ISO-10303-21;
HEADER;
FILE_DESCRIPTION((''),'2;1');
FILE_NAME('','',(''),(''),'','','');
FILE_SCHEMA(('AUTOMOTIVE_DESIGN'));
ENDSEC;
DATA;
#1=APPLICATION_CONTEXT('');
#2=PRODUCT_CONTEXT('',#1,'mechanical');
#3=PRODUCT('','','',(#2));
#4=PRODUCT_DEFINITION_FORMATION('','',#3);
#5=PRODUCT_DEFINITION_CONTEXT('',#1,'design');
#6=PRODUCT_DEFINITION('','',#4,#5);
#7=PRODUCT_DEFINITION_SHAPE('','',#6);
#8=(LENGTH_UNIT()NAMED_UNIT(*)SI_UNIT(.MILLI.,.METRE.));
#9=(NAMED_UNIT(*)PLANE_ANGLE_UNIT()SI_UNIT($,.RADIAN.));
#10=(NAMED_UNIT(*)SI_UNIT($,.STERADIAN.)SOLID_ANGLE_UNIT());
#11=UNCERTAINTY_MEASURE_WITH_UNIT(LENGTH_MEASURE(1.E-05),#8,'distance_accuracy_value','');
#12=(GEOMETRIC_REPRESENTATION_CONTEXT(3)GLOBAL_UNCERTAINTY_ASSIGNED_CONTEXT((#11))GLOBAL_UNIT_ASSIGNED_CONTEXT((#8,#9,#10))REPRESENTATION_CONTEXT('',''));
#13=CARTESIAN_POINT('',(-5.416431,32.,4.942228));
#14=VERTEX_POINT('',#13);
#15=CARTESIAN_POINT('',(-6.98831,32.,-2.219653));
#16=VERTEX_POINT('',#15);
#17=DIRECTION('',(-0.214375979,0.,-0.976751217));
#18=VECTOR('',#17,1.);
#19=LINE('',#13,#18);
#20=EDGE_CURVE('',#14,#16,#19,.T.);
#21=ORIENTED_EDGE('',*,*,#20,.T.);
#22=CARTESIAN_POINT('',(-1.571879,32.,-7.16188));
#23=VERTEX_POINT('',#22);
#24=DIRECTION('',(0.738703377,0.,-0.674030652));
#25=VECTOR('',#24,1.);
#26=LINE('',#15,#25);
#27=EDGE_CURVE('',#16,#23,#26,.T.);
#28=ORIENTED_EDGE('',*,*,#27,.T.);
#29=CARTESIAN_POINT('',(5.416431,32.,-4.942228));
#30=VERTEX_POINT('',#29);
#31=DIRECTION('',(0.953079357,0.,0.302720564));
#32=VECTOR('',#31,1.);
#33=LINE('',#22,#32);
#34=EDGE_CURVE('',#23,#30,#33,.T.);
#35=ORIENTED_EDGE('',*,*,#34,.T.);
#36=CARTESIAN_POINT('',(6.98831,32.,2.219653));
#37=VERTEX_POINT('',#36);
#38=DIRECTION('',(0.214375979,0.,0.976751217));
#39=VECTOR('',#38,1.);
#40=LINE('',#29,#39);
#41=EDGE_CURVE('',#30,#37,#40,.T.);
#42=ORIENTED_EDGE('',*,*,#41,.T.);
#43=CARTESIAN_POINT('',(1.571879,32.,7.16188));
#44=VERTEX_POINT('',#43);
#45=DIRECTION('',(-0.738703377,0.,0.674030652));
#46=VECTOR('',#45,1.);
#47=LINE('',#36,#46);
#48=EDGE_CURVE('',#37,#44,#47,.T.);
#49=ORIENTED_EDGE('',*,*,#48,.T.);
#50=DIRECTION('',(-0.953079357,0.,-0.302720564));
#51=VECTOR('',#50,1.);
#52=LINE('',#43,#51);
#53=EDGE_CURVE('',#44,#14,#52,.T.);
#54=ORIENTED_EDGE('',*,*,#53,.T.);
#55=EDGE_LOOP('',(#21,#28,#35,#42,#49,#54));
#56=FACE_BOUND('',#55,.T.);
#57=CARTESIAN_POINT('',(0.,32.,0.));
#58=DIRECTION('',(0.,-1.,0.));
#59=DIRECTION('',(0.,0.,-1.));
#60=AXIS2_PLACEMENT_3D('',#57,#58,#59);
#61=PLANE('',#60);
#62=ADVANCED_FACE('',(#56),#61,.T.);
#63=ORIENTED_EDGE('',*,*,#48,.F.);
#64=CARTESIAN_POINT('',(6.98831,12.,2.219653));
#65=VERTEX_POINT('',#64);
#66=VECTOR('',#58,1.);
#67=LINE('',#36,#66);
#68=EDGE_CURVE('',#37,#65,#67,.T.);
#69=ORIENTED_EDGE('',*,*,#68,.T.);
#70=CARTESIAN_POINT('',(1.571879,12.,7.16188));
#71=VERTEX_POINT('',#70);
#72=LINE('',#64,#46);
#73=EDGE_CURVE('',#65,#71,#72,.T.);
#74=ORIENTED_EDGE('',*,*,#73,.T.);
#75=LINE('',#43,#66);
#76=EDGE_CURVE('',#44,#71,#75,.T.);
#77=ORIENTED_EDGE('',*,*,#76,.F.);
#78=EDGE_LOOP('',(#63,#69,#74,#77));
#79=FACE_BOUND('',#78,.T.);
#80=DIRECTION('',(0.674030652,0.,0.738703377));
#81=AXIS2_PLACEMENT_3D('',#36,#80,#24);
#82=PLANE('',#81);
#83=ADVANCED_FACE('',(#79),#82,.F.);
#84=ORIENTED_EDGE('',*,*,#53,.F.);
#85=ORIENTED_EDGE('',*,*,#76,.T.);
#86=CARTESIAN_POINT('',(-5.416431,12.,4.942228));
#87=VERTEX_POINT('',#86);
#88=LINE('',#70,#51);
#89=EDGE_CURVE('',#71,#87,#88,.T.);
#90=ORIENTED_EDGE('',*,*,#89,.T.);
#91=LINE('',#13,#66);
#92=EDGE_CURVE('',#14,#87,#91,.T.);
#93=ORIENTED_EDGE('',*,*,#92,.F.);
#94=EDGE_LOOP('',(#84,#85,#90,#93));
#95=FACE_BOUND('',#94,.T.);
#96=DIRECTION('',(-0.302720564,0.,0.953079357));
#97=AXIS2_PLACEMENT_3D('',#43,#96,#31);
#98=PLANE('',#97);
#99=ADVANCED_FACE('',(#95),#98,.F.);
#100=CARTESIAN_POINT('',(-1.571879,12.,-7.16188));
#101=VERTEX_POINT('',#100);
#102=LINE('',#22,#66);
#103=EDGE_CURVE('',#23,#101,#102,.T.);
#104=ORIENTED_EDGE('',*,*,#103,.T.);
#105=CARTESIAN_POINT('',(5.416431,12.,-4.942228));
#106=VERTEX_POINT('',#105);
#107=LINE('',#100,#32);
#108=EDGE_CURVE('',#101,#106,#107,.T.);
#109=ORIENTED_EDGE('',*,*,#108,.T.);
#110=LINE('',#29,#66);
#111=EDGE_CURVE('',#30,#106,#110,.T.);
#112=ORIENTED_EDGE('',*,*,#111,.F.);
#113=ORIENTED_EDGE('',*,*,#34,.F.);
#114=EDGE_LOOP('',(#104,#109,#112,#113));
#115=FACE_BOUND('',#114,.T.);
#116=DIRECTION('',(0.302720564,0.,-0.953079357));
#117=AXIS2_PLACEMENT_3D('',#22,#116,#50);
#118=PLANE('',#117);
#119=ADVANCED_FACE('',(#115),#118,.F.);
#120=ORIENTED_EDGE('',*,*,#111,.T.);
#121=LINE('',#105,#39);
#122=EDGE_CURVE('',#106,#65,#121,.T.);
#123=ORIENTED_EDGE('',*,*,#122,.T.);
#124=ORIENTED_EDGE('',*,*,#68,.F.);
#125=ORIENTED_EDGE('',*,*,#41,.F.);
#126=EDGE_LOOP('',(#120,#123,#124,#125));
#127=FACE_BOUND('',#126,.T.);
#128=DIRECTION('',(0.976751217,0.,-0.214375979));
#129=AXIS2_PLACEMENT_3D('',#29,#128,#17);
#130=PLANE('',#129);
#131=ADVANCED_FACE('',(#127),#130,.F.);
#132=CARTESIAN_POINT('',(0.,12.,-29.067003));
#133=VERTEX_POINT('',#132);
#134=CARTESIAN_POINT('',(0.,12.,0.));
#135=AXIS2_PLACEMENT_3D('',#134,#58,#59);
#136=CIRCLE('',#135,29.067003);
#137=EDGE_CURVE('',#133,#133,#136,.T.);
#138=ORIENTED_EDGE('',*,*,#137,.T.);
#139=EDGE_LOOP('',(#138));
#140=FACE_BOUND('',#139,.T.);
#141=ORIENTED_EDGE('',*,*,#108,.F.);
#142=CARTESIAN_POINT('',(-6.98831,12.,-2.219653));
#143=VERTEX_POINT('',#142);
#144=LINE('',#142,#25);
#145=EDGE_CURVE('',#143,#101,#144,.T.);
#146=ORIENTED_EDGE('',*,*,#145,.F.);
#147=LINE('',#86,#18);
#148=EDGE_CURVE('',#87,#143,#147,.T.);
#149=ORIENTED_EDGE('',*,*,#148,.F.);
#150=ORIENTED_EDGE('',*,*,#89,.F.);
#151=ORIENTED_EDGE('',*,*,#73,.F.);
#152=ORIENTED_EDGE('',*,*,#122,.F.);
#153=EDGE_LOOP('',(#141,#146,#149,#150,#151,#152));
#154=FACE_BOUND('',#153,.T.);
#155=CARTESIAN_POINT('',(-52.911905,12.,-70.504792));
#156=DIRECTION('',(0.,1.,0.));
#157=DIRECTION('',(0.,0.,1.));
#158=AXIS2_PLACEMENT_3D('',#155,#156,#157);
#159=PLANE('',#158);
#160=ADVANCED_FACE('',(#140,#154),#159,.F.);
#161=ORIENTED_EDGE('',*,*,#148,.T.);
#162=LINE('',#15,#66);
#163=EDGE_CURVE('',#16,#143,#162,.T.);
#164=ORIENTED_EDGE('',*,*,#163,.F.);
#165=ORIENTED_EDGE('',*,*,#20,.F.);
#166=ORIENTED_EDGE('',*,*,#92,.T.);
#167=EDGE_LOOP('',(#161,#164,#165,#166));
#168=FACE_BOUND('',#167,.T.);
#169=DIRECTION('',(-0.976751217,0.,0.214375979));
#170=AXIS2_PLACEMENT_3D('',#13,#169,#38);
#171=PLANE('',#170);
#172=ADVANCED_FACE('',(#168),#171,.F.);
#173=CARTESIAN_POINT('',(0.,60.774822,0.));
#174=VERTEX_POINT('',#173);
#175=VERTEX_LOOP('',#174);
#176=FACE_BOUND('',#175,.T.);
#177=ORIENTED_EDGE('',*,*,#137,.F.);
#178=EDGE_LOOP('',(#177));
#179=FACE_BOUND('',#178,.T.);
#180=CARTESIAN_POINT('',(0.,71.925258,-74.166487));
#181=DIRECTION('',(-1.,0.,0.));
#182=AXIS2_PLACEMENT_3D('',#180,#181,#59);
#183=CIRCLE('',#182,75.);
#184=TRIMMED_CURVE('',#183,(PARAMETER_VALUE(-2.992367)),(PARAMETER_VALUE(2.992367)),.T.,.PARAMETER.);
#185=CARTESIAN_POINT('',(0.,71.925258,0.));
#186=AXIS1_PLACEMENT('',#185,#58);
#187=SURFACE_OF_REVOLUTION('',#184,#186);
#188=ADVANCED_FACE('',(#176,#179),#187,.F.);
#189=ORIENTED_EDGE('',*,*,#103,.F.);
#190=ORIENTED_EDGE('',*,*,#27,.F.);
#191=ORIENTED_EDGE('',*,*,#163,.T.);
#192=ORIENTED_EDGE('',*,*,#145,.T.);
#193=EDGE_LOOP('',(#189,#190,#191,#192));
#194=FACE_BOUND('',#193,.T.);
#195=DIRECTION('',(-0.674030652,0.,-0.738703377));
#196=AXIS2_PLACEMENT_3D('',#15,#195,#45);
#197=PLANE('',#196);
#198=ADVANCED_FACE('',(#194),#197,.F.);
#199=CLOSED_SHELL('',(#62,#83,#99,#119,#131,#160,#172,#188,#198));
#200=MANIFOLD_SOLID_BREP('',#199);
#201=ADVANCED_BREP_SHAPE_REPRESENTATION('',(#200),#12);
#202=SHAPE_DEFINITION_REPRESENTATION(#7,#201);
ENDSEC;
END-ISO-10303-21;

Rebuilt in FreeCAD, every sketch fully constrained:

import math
import FreeCAD as App
import Part
import Sketcher

V = App.Vector
Q = App.Units.Quantity

doc = App.newDocument("Part")
body = doc.addObject("PartDesign::Body", "Body")

sketch1 = body.newObject("Sketcher::SketchObject", "Sketch")
sketch1.AttachmentSupport = (doc.getObject("XY_Plane"), [""])
sketch1.MapMode = "FlatFace"
sketch1.addGeometry(Part.LineSegment(V(0, 61, 0), V(0, 0, 0)), False)
sketch1.addGeometry(Part.LineSegment(V(0, 0, 0), V(53, 0, 0)), False)
sketch1.addGeometry(Part.ArcOfCircle(Part.Circle(V(74, 72, 0), V(0, 0, 1), 75), math.radians(-171), math.radians(-106)), False)
sketch1.addConstraint(Sketcher.Constraint("Coincident", 0, 2, 1, 1))
sketch1.addConstraint(Sketcher.Constraint("Coincident", 1, 2, 2, 2))
sketch1.addConstraint(Sketcher.Constraint("Coincident", 2, 1, 0, 1))
sketch1.addConstraint(Sketcher.Constraint("Vertical", 0))
sketch1.addConstraint(Sketcher.Constraint("Horizontal", 1))
sketch1.addConstraint(Sketcher.Constraint("Coincident", 0, 2, -1, 1))
sketch1.addConstraint(Sketcher.Constraint("Radius", 2, Q("75 mm")))
sketch1.addConstraint(Sketcher.Constraint("DistanceY", 0, 2, 0, 1, Q("60.774822 mm")))
sketch1.addConstraint(Sketcher.Constraint("DistanceX", 1, 1, 1, 2, Q("52.911905 mm")))
revolution = body.newObject("PartDesign::Revolution", "Revolution")
revolution.Profile = sketch1
revolution.ReferenceAxis = (sketch1, ["V_Axis"])
revolution.Angle = 360

sketch2 = body.newObject("Sketcher::SketchObject", "Sketch001")
sketch2.AttachmentSupport = (doc.getObject("YZ_Plane"), [""])
sketch2.MapMode = "FlatFace"
sketch2.addGeometry(Part.LineSegment(V(12, 71, 0), V(0, 71, 0)), False)
sketch2.addGeometry(Part.LineSegment(V(0, 71, 0), V(0, -71, 0)), False)
sketch2.addGeometry(Part.LineSegment(V(0, -71, 0), V(12, -71, 0)), False)
sketch2.addGeometry(Part.LineSegment(V(12, -71, 0), V(12, 71, 0)), False)
sketch2.addConstraint(Sketcher.Constraint("Coincident", 0, 2, 1, 1))
sketch2.addConstraint(Sketcher.Constraint("Coincident", 1, 2, 2, 1))
sketch2.addConstraint(Sketcher.Constraint("Coincident", 2, 2, 3, 1))
sketch2.addConstraint(Sketcher.Constraint("Coincident", 3, 2, 0, 1))
sketch2.addConstraint(Sketcher.Constraint("Horizontal", 0))
sketch2.addConstraint(Sketcher.Constraint("Vertical", 1))
sketch2.addConstraint(Sketcher.Constraint("Horizontal", 2))
sketch2.addConstraint(Sketcher.Constraint("Vertical", 3))
sketch2.addConstraint(Sketcher.Constraint("Symmetric", 0, 2, 1, 2, -1, 1))
sketch2.addConstraint(Sketcher.Constraint("DistanceX", 0, 2, 0, 1, Q("12 mm")))
sketch2.addConstraint(Sketcher.Constraint("DistanceY", 1, 2, 1, 1, Q("141.009585 mm")))
pocket1 = body.newObject("PartDesign::Pocket", "Pocket")
pocket1.Profile = sketch2
pocket1.Type = "ThroughAll"
pocket1.Midplane = True

sketch3 = body.newObject("Sketcher::SketchObject", "Sketch002")
sketch3.AttachmentSupport = (doc.getObject("XZ_Plane"), [""])
sketch3.MapMode = "FlatFace"
sketch3.AttachmentOffset = App.Placement(V(0, 0, -12), App.Rotation())
sketch3.addGeometry(Part.LineSegment(V(-5, 5, 0), V(-7, -2, 0)), False)
sketch3.addGeometry(Part.LineSegment(V(-7, -2, 0), V(-2, -7, 0)), False)
sketch3.addGeometry(Part.LineSegment(V(-2, -7, 0), V(5, -5, 0)), False)
sketch3.addGeometry(Part.LineSegment(V(5, -5, 0), V(7, 2, 0)), False)
sketch3.addGeometry(Part.LineSegment(V(7, 2, 0), V(2, 7, 0)), False)
sketch3.addGeometry(Part.LineSegment(V(2, 7, 0), V(-5, 5, 0)), False)
sketch3.addConstraint(Sketcher.Constraint("Coincident", 0, 2, 1, 1))
sketch3.addConstraint(Sketcher.Constraint("Coincident", 1, 2, 2, 1))
sketch3.addConstraint(Sketcher.Constraint("Coincident", 2, 2, 3, 1))
sketch3.addConstraint(Sketcher.Constraint("Coincident", 3, 2, 4, 1))
sketch3.addConstraint(Sketcher.Constraint("Coincident", 4, 2, 5, 1))
sketch3.addConstraint(Sketcher.Constraint("Coincident", 5, 2, 0, 1))
sketch3.addConstraint(Sketcher.Constraint("Symmetric", 0, 2, 3, 2, -1, 1))
sketch3.addConstraint(Sketcher.Constraint("Symmetric", 1, 2, 4, 2, -1, 1))
sketch3.addConstraint(Sketcher.Constraint("Symmetric", 2, 2, 5, 2, -1, 1))
sketch3.addConstraint(Sketcher.Constraint("Equal", 0, 1))
sketch3.addConstraint(Sketcher.Constraint("Equal", 1, 2))
sketch3.addConstraint(Sketcher.Constraint("Distance", 0, Q("7.332348 mm")))
sketch3.addConstraint(Sketcher.Constraint("DistanceX", 0, 2, -1, 1, Q("6.98831 mm")))
sketch3.addConstraint(Sketcher.Constraint("DistanceX", 1, 2, -1, 1, Q("1.571879 mm")))
sketch3.addConstraint(Sketcher.Constraint("DistanceY", 1, 2, -1, 1, Q("7.16188 mm")))
pocket2 = body.newObject("PartDesign::Pocket", "Pocket001")
pocket2.Profile = sketch3
pocket2.Length = 20

doc.recompute()
